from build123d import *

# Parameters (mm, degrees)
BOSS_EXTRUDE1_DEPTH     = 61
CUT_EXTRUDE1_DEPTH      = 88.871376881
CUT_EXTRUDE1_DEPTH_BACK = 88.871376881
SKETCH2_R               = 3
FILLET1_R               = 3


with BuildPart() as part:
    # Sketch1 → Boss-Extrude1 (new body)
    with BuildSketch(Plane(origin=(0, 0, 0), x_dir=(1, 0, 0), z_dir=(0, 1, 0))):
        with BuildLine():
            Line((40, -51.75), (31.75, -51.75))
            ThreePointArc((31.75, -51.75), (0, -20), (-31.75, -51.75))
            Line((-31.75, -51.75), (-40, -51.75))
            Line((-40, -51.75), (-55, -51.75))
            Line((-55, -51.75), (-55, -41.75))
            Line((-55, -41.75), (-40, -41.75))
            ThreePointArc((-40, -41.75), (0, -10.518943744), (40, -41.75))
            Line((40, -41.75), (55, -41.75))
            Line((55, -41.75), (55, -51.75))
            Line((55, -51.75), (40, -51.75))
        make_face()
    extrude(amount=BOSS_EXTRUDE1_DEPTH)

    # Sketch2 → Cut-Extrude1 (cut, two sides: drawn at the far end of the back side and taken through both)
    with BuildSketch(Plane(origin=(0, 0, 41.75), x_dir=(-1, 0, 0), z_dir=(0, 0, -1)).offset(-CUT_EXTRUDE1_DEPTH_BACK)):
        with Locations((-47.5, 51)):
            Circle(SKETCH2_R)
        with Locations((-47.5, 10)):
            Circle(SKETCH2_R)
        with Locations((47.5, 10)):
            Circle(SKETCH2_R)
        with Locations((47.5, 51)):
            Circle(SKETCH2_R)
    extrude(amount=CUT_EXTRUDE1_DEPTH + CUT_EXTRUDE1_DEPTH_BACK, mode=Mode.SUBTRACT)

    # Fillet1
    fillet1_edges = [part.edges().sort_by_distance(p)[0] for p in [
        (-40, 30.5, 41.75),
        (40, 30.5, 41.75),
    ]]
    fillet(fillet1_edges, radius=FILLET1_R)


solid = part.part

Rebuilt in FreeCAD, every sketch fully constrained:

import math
import FreeCAD as App
import Part
import Sketcher
from FreeCAD import Vector
Q = App.Units.Quantity


def edges_at(feature, points):
    """Names of the edges that pass closest to the given points."""
    edges = feature.Shape.Edges
    near = lambda p: min(range(len(edges)), key=lambda i: edges[i].distToShape(Part.Vertex(*p))[0])
    return sorted({f"Edge{near(p) + 1}" for p in points})

doc = App.newDocument("Part")
body = doc.addObject("PartDesign::Body", "Body")

# Sketch on XZ plane
sketch1 = body.newObject("Sketcher::SketchObject", "Sketch")
sketch1.AttachmentSupport = (doc.getObject("XZ_Plane"), [""])
sketch1.MapMode = "FlatFace"
sketch1.addGeometry(Part.ArcOfCircle(Part.Circle(Vector(0, 52, 0), Vector(0, 0, 1), 32), math.radians(180), math.radians(360)), False)
sketch1.addGeometry(Part.LineSegment(Vector(32, 52, 0), Vector(55, 52, 0)), False)
sketch1.addGeometry(Part.LineSegment(Vector(55, 52, 0), Vector(55, 42, 0)), False)
sketch1.addGeometry(Part.LineSegment(Vector(55, 42, 0), Vector(40, 42, 0)), False)
sketch1.addGeometry(Part.ArcOfCircle(Part.Circle(Vector(0, 52, 0), Vector(0, 0, 1), 41), math.radians(-166), math.radians(-14)), False)
sketch1.addGeometry(Part.LineSegment(Vector(-40, 42, 0), Vector(-55, 42, 0)), False)
sketch1.addGeometry(Part.LineSegment(Vector(-55, 42, 0), Vector(-55, 52, 0)), False)
sketch1.addGeometry(Part.LineSegment(Vector(-55, 52, 0), Vector(-32, 52, 0)), False)
sketch1.addConstraint(Sketcher.Constraint("Coincident", 0, 2, 1, 1))
sketch1.addConstraint(Sketcher.Constraint("Coincident", 1, 2, 2, 1))
sketch1.addConstraint(Sketcher.Constraint("Coincident", 2, 2, 3, 1))
sketch1.addConstraint(Sketcher.Constraint("Coincident", 3, 2, 4, 2))
sketch1.addConstraint(Sketcher.Constraint("Coincident", 4, 1, 5, 1))
sketch1.addConstraint(Sketcher.Constraint("Coincident", 5, 2, 6, 1))
sketch1.addConstraint(Sketcher.Constraint("Coincident", 6, 2, 7, 1))
sketch1.addConstraint(Sketcher.Constraint("Coincident", 7, 2, 0, 1))
sketch1.addConstraint(Sketcher.Constraint("Horizontal", 1))
sketch1.addConstraint(Sketcher.Constraint("Vertical", 2))
sketch1.addConstraint(Sketcher.Constraint("Horizontal", 3))
sketch1.addConstraint(Sketcher.Constraint("Horizontal", 5))
sketch1.addConstraint(Sketcher.Constraint("Vertical", 6))
sketch1.addConstraint(Sketcher.Constraint("Horizontal", 7))
sketch1.addConstraint(Sketcher.Constraint("Coincident", 4, 3, 0, 3))
sketch1.addConstraint(Sketcher.Constraint("Symmetric", 3, 2, 4, 1, -2))
sketch1.addConstraint(Sketcher.Constraint("Symmetric", 1, 2, 6, 2, -2))
sketch1.addConstraint(Sketcher.Constraint("Horizontal", 4, 3, 0, 2))
sketch1.addConstraint(Sketcher.Constraint("DistanceX", 3, 2, 3, 1, Q("15 mm")))
sketch1.addConstraint(Sketcher.Constraint("DistanceY", 2, 2, 2, 1, Q("10 mm")))
sketch1.addConstraint(Sketcher.Constraint("Radius", 0, Q("31.75 mm")))
sketch1.addConstraint(Sketcher.Constraint("DistanceX", -1, 1, 1, 2, Q("55 mm")))
sketch1.addConstraint(Sketcher.Constraint("DistanceY", -1, 1, 0, 3, Q("51.75 mm")))
pad1 = body.newObject("PartDesign::Pad", "Pad")
pad1.Profile = sketch1
pad1.Length = 61
pad1.Reversed = True

# Sketch on XY plane
sketch2 = body.newObject("Sketcher::SketchObject", "Sketch001")
sketch2.AttachmentSupport = (doc.getObject("XY_Plane"), [""])
sketch2.MapMode = "FlatFace"
sketch2.AttachmentOffset = App.Placement(Vector(0, 0, 41.75), App.Rotation())
sketch2.addGeometry(Part.Circle(Vector(47.5, 51, 0), Vector(0, 0, 1), 3), False)
sketch2.addGeometry(Part.Circle(Vector(47.5, 10, 0), Vector(0, 0, 1), 3), False)
sketch2.addGeometry(Part.Circle(Vector(-47.5, 10, 0), Vector(0, 0, 1), 3), False)
sketch2.addGeometry(Part.Circle(Vector(-47.5, 51, 0), Vector(0, 0, 1), 3), False)
sketch2.addConstraint(Sketcher.Constraint("Equal", 0, 1))
sketch2.addConstraint(Sketcher.Constraint("Equal", 1, 2))
sketch2.addConstraint(Sketcher.Constraint("Equal", 2, 3))
sketch2.addConstraint(Sketcher.Constraint("Symmetric", 1, 3, 2, 3, -2))
sketch2.addConstraint(Sketcher.Constraint("Symmetric", 0, 3, 3, 3, -2))
sketch2.addConstraint(Sketcher.Constraint("Vertical", 0, 3, 1, 3))
sketch2.addConstraint(Sketcher.Constraint("Diameter", 0, Q("6 mm")))
sketch2.addConstraint(Sketcher.Constraint("DistanceY", -1, 1, 0, 3, Q("51 mm")))
sketch2.addConstraint(Sketcher.Constraint("DistanceY", -1, 1, 1, 3, Q("10 mm")))
sketch2.addConstraint(Sketcher.Constraint("DistanceX", 2, 3, 1, 3, Q("95 mm")))
pocket1 = body.newObject("PartDesign::Pocket", "Pocket")
pocket1.Profile = sketch2
pocket1.Type = "ThroughAll"
pocket1.Midplane = True
doc.recompute()

fillet = body.newObject("PartDesign::Fillet", "Fillet")
fillet.Base = (pocket1, edges_at(pocket1, [(-40, 30.5, 41.75), (40, 30.5, 41.75)]))
fillet.Radius = 3

doc.recompute()
